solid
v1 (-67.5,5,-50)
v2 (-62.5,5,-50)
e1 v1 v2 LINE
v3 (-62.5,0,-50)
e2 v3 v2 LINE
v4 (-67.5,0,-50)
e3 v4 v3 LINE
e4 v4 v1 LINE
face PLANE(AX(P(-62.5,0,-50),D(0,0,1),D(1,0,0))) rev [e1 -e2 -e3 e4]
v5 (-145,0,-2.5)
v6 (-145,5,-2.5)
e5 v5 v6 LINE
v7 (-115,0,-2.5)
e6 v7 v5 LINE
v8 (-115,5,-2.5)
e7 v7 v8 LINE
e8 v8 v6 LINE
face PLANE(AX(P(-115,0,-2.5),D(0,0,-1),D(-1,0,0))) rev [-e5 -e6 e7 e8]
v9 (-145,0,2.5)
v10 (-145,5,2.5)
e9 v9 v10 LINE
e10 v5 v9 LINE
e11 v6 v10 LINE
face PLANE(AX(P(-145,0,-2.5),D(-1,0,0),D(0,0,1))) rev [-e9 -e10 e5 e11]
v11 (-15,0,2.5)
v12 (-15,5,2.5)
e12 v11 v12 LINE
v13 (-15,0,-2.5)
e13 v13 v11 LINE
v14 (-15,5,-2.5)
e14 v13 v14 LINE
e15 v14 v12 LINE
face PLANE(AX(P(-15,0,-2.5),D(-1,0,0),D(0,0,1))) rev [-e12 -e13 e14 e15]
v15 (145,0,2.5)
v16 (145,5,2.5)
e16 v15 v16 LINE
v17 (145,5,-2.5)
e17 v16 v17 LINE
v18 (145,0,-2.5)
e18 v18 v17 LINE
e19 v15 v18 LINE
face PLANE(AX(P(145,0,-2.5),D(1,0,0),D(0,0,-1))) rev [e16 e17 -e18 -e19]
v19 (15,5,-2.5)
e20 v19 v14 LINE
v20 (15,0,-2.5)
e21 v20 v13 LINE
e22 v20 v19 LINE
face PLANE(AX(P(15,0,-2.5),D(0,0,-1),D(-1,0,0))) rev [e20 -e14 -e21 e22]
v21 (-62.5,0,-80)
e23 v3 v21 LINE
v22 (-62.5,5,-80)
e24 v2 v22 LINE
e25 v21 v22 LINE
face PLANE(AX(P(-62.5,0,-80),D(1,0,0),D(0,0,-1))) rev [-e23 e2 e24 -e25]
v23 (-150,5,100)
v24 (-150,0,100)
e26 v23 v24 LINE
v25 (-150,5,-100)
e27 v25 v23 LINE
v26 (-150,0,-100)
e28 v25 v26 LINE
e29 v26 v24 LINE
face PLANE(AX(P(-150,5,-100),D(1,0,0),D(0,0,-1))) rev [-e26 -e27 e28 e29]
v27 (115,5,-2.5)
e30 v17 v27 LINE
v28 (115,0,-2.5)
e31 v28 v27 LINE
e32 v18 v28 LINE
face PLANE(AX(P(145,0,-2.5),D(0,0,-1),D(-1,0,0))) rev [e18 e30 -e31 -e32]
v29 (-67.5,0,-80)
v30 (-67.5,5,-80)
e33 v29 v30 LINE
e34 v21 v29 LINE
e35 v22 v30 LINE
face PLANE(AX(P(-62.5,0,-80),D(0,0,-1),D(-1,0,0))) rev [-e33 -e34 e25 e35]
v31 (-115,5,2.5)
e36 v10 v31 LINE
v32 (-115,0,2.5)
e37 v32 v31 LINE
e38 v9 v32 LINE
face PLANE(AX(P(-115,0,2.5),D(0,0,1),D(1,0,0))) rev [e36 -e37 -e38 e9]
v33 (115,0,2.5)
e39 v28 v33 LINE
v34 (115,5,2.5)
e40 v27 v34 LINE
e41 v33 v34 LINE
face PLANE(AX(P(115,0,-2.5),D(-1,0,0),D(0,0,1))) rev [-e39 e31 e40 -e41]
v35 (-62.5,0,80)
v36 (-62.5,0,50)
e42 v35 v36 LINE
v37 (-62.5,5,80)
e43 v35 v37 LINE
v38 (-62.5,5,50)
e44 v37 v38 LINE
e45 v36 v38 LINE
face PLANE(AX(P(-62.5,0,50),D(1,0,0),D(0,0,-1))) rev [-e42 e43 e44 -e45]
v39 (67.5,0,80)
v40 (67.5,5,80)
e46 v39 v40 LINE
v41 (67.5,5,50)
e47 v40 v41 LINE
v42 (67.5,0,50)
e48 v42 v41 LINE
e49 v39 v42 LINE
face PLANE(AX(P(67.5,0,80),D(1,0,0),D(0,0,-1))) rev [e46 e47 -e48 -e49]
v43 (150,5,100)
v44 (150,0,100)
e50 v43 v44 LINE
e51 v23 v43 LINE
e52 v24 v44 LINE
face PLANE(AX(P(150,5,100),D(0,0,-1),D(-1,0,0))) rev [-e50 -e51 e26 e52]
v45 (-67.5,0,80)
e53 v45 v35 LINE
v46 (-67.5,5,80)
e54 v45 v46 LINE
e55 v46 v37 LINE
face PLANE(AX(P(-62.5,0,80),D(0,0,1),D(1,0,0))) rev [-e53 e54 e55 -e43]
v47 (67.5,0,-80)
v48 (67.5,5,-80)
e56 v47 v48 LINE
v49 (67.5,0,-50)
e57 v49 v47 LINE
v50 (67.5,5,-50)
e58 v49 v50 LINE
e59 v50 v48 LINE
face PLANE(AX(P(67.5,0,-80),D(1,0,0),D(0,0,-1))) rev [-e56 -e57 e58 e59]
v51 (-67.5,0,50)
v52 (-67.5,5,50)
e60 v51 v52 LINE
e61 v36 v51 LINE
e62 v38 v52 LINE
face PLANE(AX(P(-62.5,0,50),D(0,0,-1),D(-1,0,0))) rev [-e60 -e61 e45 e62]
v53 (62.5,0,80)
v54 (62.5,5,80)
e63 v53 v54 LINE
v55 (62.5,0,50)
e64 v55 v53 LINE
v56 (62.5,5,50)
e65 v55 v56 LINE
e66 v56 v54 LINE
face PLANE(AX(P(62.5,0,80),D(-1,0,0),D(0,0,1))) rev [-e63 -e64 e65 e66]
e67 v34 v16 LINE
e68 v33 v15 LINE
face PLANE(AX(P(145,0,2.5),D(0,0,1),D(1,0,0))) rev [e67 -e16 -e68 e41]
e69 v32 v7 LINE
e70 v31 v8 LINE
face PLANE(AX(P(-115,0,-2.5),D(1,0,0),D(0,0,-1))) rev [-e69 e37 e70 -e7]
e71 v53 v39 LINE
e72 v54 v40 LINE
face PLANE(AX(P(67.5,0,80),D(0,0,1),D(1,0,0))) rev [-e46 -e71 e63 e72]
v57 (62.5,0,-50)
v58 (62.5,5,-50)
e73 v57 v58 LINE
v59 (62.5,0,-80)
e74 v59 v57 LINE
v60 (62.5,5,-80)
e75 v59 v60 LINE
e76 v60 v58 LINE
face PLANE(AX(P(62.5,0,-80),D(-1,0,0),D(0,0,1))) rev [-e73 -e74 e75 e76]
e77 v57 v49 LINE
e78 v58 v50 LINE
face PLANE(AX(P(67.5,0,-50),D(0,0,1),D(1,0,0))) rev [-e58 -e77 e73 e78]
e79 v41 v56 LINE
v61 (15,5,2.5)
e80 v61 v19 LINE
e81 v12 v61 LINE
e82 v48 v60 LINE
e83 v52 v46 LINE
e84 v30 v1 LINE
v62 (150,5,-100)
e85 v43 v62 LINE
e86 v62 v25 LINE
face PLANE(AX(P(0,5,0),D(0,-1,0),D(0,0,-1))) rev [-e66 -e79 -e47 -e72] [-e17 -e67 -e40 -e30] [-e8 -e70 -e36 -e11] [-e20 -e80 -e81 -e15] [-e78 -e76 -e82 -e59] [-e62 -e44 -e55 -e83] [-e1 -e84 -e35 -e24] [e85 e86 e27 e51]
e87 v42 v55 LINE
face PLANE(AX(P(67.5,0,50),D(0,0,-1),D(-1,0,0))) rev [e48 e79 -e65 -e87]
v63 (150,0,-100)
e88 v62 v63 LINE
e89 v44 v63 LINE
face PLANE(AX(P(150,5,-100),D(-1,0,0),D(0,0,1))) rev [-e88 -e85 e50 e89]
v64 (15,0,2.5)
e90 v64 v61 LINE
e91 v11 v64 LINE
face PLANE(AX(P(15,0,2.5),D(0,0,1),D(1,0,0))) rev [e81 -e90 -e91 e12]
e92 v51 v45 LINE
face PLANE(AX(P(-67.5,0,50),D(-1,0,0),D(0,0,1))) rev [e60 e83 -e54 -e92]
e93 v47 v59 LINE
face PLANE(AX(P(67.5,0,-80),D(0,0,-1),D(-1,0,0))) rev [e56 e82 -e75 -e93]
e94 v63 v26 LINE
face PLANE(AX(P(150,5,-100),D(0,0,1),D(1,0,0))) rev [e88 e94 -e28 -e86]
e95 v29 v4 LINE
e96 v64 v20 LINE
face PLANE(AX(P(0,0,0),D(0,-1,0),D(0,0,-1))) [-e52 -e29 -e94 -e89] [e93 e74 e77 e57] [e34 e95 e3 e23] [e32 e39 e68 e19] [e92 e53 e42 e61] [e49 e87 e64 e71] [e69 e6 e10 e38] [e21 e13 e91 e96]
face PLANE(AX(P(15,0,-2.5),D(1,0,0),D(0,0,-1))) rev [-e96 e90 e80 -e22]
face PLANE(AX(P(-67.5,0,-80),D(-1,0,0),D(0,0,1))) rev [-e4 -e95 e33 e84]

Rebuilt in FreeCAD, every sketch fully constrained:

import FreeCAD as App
import Part
import Sketcher


def add_polygon(sketch, points):
    """Adds a closed chain of lines whose ends are joined by coincident constraints."""
    first, n = sketch.GeometryCount, len(points)
    for a, b in zip(points, points[1:] + points[:1]):
        sketch.addGeometry(Part.LineSegment(App.Vector(*a, 0), App.Vector(*b, 0)), False)
    for i in range(n):
        sketch.addConstraint(Sketcher.Constraint("Coincident", first + i, 2, first + (i + 1) % n, 1))

doc = App.newDocument("Part")
body = doc.addObject("PartDesign::Body", "Body")

sketch1 = doc.addObject("Sketcher::SketchObject", "Sketch")
body.addObject(sketch1)
sketch1.AttachmentSupport = (doc.XZ_Plane, [""])
sketch1.MapMode = "FlatFace"
add_polygon(sketch1, [(-150, -100), (-150, 100), (150, 100), (150, -100)])
sketch1.addConstraint(Sketcher.Constraint("Vertical", 0))
sketch1.addConstraint(Sketcher.Constraint("Horizontal", 1))
sketch1.addConstraint(Sketcher.Constraint("Vertical", 2))
sketch1.addConstraint(Sketcher.Constraint("Horizontal", 3))
sketch1.addConstraint(Sketcher.Constraint("Symmetric", 0, 2, 2, 2, -1, 1))
sketch1.addConstraint(Sketcher.Constraint("DistanceX", 1, 1, 1, 2, 300.0))
sketch1.addConstraint(Sketcher.Constraint("DistanceY", 0, 1, 0, 2, 200.0))
pad1 = doc.addObject("PartDesign::Pad", "Pad")
body.addObject(pad1)
pad1.Profile = sketch1
pad1.Length = 5
pad1.Reversed = True

sketch2 = doc.addObject("Sketcher::SketchObject", "Sketch001")
body.addObject(sketch2)
sketch2.AttachmentSupport = (doc.XZ_Plane, [""])
sketch2.MapMode = "FlatFace"
sketch2.AttachmentOffset = App.Placement(App.Vector(0, 0, -5), App.Rotation())
add_polygon(sketch2, [(-145, -2), (-145, 2), (-115, 2), (-115, -2)])
add_polygon(sketch2, [(115, -2), (115, 2), (145, 2), (145, -2)])
add_polygon(sketch2, [(-68, -80), (-68, -50), (-62, -50), (-62, -80)])
add_polygon(sketch2, [(-68, 50), (-68, 80), (-62, 80), (-62, 50)])
add_polygon(sketch2, [(62, -80), (62, -50), (68, -50), (68, -80)])
add_polygon(sketch2, [(62, 50), (62, 80), (68, 80), (68, 50)])
add_polygon(sketch2, [(-15, -2), (-15, 2), (15, 2), (15, -2)])
sketch2.addConstraint(Sketcher.Constraint("Vertical", 0))
sketch2.addConstraint(Sketcher.Constraint("Horizontal", 1))
sketch2.addConstraint(Sketcher.Constraint("Vertical", 2))
sketch2.addConstraint(Sketcher.Constraint("Horizontal", 3))
sketch2.addConstraint(Sketcher.Constraint("Vertical", 4))
sketch2.addConstraint(Sketcher.Constraint("Horizontal", 5))
sketch2.addConstraint(Sketcher.Constraint("Vertical", 6))
sketch2.addConstraint(Sketcher.Constraint("Horizontal", 7))
sketch2.addConstraint(Sketcher.Constraint("Vertical", 8))
sketch2.addConstraint(Sketcher.Constraint("Horizontal", 9))
sketch2.addConstraint(Sketcher.Constraint("Vertical", 10))
sketch2.addConstraint(Sketcher.Constraint("Horizontal", 11))
sketch2.addConstraint(Sketcher.Constraint("Vertical", 12))
sketch2.addConstraint(Sketcher.Constraint("Horizontal", 13))
sketch2.addConstraint(Sketcher.Constraint("Vertical", 14))
sketch2.addConstraint(Sketcher.Constraint("Horizontal", 15))
sketch2.addConstraint(Sketcher.Constraint("Vertical", 16))
sketch2.addConstraint(Sketcher.Constraint("Horizontal", 17))
sketch2.addConstraint(Sketcher.Constraint("Vertical", 18))
sketch2.addConstraint(Sketcher.Constraint("Horizontal", 19))
sketch2.addConstraint(Sketcher.Constraint("Vertical", 20))
sketch2.addConstraint(Sketcher.Constraint("Horizontal", 21))
sketch2.addConstraint(Sketcher.Constraint("Vertical", 22))
sketch2.addConstraint(Sketcher.Constraint("Horizontal", 23))
sketch2.addConstraint(Sketcher.Constraint("Vertical", 24))
sketch2.addConstraint(Sketcher.Constraint("Horizontal", 25))
sketch2.addConstraint(Sketcher.Constraint("Vertical", 26))
sketch2.addConstraint(Sketcher.Constraint("Horizontal", 27))
sketch2.addConstraint(Sketcher.Constraint("Symmetric", 2, 2, 4, 2, -1, 1))
sketch2.addConstraint(Sketcher.Constraint("Symmetric", 0, 2, 6, 2, -1, 1))
sketch2.addConstraint(Sketcher.Constraint("Symmetric", 14, 2, 16, 2, -1, 1))
sketch2.addConstraint(Sketcher.Constraint("Symmetric", 12, 2, 18, 2, -1, 1))
sketch2.addConstraint(Sketcher.Constraint("Symmetric", 10, 2, 20, 2, -1, 1))
sketch2.addConstraint(Sketcher.Constraint("Symmetric", 8, 2, 22, 2, -1, 1))
sketch2.addConstraint(Sketcher.Constraint("Symmetric", 24, 2, 26, 2, -1, 1))
sketch2.addConstraint(Sketcher.Constraint("Symmetric", 9, 2, 16, 2, -2))
sketch2.addConstraint(Sketcher.Constraint("Symmetric", 11, 2, 18, 2, -2))
sketch2.addConstraint(Sketcher.Constraint("Horizontal", 1, 2, 4, 2))
sketch2.addConstraint(Sketcher.Constraint("Horizontal", 5, 2, 24, 2))
sketch2.addConstraint(Sketcher.Constraint("Equal", 7, 25))
sketch2.addConstraint(Sketcher.Constraint("Equal", 23, 0))
sketch2.addConstraint(Sketcher.Constraint("Equal", 27, 8))
sketch2.addConstraint(Sketcher.Constraint("DistanceX", 1, 1, 1, 2, 30.0))
sketch2.addConstraint(Sketcher.Constraint("DistanceX", 9, 1, 9, 2, 5.0))
sketch2.addConstraint(Sketcher.Constraint("DistanceX", 0, 2, -1, 1, 145.0))
sketch2.addConstraint(Sketcher.Constraint("DistanceY", 8, 2, -1, 1, 50.0))
sketch2.addConstraint(Sketcher.Constraint("DistanceX", 9, 2, 16, 2, 125.0))
pocket1 = doc.addObject("PartDesign::Pocket", "Pocket")
body.addObject(pocket1)
pocket1.Profile = sketch2
pocket1.Length = 5
pocket1.Reversed = True

doc.recompute()
